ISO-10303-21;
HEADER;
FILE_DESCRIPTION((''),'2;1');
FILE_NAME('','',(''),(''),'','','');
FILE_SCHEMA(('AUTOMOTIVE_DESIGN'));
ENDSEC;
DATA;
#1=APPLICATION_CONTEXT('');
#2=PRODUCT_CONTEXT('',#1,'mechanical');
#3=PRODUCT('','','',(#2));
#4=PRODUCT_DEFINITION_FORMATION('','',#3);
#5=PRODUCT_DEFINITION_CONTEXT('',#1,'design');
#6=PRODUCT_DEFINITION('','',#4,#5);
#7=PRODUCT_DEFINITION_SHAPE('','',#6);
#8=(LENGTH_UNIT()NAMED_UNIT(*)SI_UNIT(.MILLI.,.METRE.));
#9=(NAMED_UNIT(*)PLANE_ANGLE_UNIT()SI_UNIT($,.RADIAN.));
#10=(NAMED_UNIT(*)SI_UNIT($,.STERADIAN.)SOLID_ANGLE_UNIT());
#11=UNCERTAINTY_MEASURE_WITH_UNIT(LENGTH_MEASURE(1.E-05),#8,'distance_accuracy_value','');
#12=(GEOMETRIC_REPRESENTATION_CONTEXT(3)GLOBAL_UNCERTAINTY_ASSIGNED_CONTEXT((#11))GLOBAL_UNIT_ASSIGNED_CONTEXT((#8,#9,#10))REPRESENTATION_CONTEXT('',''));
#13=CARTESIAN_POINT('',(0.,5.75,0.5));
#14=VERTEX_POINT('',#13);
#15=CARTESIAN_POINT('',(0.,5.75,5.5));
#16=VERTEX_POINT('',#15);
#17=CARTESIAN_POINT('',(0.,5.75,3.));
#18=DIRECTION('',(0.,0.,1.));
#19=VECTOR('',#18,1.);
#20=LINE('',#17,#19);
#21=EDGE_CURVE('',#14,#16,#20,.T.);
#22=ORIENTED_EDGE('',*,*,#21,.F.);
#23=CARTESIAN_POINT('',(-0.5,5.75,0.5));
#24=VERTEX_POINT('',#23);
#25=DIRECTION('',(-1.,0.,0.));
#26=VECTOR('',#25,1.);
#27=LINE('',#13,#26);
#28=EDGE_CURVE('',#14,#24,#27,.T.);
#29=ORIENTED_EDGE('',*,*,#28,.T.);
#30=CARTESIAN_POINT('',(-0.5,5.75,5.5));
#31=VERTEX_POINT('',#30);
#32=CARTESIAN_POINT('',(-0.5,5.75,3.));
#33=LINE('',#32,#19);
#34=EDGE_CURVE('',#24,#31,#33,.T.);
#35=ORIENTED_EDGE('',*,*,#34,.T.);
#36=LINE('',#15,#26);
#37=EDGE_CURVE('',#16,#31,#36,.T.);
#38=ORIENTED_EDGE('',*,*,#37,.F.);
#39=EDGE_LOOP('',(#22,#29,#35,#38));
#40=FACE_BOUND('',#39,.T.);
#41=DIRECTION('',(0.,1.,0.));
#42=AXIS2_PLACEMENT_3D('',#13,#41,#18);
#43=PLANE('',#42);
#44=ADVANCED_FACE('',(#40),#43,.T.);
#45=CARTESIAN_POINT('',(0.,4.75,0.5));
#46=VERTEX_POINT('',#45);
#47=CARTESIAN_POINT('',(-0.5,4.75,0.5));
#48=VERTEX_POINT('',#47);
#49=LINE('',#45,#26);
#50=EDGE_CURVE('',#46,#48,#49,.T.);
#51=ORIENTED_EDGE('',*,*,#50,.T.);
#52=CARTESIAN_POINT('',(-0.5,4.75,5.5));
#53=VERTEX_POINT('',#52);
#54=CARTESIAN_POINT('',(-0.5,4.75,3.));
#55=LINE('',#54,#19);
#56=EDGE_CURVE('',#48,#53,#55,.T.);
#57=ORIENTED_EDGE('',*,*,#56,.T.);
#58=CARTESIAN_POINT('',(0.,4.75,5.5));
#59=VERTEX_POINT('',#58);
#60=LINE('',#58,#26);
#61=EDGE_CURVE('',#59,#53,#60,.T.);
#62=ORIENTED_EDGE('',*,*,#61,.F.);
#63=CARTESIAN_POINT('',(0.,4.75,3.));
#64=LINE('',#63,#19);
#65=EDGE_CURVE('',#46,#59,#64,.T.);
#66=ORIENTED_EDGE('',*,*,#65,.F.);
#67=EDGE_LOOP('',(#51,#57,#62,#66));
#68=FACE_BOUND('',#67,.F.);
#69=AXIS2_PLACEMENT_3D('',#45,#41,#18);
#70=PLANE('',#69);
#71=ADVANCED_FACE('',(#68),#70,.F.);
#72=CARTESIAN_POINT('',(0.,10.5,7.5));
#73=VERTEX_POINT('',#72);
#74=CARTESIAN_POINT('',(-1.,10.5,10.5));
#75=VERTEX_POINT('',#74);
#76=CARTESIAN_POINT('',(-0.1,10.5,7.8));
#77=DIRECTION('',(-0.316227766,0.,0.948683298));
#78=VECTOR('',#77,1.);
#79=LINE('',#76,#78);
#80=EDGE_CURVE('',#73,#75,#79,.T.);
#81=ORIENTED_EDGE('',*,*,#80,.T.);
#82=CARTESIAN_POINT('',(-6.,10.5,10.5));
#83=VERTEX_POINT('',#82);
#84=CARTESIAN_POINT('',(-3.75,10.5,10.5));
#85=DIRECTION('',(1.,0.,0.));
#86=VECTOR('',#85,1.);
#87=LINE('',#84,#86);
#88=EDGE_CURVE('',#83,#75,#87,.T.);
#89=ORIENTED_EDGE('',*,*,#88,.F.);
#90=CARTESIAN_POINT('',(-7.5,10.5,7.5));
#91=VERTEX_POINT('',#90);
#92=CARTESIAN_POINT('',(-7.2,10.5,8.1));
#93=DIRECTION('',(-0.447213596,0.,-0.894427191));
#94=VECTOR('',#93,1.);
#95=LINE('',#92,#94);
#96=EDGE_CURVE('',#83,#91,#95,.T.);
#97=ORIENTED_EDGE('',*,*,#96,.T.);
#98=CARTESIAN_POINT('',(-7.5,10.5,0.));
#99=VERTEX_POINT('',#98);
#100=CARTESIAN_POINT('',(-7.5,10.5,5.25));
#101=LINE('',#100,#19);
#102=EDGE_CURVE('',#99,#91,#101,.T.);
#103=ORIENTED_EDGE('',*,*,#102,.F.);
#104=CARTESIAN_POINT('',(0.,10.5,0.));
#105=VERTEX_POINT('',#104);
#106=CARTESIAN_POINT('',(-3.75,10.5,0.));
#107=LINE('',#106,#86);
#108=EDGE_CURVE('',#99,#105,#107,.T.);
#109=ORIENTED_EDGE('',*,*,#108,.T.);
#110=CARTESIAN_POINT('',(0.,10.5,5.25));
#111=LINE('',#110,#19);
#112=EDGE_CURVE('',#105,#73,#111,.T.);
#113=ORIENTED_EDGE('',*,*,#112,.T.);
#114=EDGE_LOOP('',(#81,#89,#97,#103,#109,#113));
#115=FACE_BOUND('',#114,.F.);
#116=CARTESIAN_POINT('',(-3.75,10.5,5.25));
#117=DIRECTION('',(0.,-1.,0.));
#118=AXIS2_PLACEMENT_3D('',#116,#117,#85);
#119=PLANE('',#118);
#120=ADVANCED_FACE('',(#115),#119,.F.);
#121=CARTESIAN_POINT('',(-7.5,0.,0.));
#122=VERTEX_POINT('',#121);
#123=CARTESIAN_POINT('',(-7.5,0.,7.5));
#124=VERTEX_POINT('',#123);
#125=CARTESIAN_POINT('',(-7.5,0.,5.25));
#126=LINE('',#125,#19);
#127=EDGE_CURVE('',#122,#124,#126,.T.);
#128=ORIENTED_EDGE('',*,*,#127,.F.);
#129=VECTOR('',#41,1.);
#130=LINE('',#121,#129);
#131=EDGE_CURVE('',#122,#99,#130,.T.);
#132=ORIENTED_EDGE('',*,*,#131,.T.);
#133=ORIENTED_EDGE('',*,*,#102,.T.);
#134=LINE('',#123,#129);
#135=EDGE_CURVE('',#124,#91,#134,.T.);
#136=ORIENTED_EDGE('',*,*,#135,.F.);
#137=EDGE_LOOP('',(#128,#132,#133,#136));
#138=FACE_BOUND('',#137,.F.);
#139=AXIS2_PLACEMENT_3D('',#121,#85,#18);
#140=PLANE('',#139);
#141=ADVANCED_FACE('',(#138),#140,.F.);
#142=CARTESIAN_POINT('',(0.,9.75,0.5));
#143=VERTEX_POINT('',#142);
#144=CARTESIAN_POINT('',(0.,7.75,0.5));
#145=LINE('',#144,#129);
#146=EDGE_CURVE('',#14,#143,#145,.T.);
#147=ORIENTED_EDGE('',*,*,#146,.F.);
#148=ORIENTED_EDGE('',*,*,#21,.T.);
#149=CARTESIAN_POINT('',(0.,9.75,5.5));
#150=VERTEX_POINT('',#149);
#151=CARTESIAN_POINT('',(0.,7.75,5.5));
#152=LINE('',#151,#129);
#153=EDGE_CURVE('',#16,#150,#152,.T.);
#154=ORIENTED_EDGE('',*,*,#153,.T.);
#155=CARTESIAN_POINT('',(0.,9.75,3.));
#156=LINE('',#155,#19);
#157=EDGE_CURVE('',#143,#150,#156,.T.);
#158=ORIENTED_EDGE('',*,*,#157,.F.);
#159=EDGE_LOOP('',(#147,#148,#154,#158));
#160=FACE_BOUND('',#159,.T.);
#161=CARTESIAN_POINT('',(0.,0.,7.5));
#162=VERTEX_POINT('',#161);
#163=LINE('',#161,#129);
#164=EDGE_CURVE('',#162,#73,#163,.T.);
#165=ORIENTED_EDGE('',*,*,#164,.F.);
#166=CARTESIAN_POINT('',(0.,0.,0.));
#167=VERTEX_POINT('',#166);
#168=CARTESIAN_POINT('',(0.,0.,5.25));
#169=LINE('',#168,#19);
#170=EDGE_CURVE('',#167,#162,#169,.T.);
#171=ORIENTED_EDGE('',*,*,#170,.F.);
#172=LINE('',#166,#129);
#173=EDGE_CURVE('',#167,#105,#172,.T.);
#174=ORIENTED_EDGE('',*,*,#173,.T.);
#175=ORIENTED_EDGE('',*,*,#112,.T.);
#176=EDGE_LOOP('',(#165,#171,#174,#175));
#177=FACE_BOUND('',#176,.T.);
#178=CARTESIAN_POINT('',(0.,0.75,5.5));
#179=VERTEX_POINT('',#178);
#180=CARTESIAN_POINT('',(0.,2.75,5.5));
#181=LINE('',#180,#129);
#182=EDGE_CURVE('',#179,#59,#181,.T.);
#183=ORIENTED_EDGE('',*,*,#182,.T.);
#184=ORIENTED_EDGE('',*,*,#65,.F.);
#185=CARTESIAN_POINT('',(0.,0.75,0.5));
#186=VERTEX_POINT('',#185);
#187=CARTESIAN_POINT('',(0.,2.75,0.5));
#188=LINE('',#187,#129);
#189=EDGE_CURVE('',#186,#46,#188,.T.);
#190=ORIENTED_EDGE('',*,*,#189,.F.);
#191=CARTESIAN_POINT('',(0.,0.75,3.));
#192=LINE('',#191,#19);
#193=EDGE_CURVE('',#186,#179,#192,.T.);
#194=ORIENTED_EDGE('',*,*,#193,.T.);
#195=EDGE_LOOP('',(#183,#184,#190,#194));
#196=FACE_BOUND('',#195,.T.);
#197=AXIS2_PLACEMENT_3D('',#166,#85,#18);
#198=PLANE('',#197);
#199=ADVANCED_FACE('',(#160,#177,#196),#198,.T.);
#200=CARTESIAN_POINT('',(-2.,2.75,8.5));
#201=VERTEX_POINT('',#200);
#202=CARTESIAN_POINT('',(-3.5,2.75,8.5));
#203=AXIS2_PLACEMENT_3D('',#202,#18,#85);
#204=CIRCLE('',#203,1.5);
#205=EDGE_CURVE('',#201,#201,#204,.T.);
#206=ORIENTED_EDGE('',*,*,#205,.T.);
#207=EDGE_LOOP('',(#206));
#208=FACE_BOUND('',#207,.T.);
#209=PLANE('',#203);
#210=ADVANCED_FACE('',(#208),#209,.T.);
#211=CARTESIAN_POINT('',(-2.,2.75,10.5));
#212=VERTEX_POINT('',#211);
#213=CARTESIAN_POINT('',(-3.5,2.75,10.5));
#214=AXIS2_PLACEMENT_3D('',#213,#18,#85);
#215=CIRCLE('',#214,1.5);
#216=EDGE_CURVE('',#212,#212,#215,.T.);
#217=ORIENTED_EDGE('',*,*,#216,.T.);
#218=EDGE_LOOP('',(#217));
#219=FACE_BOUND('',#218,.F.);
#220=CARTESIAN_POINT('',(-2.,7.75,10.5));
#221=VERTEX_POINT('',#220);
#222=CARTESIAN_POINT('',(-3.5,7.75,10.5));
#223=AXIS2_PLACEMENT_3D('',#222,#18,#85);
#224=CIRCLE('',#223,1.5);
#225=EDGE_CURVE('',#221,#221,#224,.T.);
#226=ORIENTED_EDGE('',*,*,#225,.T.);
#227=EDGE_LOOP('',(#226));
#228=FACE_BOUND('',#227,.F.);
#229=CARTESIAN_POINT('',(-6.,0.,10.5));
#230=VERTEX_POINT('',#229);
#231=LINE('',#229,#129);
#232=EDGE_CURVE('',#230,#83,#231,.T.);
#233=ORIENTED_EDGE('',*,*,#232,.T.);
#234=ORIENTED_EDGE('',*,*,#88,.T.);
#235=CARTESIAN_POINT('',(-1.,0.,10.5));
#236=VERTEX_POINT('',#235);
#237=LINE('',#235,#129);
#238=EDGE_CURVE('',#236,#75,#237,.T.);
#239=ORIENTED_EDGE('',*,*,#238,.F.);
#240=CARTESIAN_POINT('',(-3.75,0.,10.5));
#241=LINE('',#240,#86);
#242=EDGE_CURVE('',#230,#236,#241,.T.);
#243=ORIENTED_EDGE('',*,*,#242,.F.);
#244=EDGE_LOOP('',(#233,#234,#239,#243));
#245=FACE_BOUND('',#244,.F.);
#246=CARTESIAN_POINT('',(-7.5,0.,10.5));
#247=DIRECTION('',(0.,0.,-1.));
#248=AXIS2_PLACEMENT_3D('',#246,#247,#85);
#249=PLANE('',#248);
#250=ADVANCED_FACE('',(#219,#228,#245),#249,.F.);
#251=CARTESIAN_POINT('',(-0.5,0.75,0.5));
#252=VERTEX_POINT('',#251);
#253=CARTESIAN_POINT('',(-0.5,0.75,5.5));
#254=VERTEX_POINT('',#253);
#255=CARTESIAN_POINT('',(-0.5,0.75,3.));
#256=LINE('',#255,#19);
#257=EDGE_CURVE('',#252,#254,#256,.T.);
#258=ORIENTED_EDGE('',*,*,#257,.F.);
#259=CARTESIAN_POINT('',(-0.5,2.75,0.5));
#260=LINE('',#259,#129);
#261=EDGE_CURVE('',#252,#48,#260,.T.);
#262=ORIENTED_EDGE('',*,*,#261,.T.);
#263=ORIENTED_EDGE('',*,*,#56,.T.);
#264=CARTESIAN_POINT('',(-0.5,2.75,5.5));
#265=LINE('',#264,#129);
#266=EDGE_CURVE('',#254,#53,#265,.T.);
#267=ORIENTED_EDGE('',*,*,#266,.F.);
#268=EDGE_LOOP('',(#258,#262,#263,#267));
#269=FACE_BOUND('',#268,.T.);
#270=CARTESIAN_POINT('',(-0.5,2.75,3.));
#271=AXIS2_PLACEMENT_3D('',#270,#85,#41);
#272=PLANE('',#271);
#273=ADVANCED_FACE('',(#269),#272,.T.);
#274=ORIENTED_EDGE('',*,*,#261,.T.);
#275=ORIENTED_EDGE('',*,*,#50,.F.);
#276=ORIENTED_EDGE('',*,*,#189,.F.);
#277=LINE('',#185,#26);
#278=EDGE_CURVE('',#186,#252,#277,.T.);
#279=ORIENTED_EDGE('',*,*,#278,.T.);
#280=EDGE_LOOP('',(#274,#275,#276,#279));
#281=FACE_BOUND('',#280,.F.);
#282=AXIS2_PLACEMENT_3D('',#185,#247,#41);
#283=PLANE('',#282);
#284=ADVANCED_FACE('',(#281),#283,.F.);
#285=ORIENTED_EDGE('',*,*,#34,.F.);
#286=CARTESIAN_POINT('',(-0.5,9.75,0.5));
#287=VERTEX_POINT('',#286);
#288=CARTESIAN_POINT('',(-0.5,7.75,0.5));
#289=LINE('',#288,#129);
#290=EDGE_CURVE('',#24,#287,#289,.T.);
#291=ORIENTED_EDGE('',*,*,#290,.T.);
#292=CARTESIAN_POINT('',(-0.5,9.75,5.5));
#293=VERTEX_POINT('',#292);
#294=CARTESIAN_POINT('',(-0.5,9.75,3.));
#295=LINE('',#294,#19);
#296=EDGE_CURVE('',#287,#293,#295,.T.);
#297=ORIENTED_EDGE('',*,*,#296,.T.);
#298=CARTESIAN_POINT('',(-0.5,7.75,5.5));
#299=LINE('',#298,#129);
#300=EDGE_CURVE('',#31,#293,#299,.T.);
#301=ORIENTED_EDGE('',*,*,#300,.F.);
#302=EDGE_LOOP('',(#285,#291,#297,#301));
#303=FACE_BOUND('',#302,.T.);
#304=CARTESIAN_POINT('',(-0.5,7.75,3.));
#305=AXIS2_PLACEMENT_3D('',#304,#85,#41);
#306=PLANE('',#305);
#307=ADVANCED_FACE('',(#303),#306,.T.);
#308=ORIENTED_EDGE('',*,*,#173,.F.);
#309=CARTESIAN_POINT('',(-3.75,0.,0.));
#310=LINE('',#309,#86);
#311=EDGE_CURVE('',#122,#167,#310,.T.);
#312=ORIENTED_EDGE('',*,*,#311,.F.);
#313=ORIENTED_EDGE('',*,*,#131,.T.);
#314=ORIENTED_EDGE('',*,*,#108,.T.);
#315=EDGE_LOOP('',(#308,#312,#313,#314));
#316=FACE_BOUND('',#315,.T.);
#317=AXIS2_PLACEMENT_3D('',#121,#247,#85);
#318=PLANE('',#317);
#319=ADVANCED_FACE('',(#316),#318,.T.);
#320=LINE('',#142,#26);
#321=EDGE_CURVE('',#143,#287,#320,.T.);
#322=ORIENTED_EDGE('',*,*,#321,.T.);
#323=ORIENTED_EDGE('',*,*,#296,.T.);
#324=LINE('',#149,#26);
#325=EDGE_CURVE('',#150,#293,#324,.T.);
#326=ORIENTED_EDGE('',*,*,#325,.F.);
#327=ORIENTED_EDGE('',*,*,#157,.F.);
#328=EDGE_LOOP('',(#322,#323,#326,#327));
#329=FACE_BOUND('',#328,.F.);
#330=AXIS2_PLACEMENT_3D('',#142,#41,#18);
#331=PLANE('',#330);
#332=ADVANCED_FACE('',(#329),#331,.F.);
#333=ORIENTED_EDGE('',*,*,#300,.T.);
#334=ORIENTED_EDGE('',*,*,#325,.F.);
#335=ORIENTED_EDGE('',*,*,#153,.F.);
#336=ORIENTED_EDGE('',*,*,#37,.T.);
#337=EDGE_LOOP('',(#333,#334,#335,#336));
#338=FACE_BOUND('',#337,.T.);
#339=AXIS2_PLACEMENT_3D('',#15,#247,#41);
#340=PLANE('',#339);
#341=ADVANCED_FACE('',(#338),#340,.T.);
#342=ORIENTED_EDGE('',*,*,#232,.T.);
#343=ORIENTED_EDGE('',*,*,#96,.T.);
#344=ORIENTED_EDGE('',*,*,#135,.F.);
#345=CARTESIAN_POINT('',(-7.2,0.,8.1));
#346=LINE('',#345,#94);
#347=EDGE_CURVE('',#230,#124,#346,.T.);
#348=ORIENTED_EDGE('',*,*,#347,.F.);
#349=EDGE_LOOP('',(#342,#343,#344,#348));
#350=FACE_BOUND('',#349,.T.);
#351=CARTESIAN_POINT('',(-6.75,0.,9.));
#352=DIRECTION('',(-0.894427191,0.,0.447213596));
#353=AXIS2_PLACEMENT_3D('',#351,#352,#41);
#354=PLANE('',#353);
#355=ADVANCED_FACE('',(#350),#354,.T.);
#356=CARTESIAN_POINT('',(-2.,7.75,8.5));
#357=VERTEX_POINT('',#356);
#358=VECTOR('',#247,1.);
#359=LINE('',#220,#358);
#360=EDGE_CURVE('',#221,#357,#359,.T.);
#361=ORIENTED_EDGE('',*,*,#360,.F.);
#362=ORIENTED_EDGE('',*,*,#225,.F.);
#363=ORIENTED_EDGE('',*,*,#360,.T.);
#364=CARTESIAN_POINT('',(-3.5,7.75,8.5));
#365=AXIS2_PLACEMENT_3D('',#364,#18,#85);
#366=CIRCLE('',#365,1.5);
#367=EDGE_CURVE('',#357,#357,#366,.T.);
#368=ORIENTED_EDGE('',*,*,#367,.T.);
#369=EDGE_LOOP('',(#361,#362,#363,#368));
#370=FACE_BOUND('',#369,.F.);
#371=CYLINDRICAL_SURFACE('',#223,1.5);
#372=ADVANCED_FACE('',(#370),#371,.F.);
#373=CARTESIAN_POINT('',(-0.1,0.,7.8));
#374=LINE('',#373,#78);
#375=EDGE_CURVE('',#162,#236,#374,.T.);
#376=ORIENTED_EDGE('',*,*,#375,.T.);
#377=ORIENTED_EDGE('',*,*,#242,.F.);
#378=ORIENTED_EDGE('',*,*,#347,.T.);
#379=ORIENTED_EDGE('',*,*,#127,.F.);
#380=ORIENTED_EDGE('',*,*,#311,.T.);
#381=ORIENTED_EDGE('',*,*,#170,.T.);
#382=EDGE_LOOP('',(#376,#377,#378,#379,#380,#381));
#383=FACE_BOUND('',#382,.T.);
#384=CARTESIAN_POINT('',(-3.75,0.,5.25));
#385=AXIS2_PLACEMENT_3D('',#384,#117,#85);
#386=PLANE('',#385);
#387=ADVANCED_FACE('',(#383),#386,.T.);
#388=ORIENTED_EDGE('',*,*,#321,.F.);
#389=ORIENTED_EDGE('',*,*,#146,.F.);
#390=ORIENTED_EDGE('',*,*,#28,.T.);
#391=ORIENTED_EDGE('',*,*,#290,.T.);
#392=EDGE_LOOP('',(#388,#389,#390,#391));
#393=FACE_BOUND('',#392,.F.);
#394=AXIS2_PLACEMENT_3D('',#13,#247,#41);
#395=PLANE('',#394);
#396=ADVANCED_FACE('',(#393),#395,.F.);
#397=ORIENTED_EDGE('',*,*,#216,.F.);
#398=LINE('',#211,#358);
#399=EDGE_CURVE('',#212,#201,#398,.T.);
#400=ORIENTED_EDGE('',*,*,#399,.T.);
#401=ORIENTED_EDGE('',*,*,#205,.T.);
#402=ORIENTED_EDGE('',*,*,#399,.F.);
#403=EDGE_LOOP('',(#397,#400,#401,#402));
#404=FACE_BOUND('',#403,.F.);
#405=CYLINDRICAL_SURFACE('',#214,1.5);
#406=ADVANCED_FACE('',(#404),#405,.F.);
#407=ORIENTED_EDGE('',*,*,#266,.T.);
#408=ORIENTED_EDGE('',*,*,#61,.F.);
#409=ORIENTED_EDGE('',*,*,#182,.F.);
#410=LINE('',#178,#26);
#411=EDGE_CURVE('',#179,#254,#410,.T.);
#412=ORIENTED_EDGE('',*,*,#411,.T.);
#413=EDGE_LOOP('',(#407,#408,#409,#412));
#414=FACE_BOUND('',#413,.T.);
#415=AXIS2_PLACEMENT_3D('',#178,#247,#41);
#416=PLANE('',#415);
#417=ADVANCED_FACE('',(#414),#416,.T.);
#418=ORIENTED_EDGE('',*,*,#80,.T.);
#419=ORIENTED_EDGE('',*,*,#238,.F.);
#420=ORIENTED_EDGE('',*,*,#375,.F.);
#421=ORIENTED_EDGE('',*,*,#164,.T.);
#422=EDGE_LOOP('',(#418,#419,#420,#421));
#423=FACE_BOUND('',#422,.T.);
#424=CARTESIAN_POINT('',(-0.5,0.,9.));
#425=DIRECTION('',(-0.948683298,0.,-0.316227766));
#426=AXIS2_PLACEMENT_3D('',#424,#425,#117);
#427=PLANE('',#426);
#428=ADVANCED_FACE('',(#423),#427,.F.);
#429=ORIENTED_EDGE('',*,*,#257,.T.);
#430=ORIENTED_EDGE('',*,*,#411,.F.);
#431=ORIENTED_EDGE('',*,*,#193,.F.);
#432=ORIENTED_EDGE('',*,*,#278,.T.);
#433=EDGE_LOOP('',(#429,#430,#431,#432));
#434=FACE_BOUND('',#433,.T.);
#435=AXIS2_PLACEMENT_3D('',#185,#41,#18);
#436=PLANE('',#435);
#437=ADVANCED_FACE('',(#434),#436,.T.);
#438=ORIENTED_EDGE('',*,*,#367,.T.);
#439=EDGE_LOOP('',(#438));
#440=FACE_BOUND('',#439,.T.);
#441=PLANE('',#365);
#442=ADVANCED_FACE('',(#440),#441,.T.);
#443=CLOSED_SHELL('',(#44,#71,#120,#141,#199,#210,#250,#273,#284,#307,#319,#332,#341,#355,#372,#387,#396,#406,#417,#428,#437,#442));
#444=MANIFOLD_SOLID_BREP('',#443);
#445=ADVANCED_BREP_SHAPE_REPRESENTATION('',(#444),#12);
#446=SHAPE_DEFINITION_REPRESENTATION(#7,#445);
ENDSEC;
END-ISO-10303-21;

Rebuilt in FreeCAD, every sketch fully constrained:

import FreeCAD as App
import Part
import Sketcher


def edges_at(feature, points):
    """Names of the edges that pass closest to the given points."""
    edges = feature.Shape.Edges
    near = lambda p: min(range(len(edges)), key=lambda i: edges[i].distToShape(Part.Vertex(*p))[0])
    return sorted({f"Edge{near(p) + 1}" for p in points})

doc = App.newDocument("Part")
body = doc.addObject("PartDesign::Body", "Body")

sketch1 = doc.addObject("Sketcher::SketchObject", "Sketch")
body.addObject(sketch1)
sketch1.AttachmentSupport = (doc.XZ_Plane, [""])
sketch1.MapMode = "FlatFace"
sketch1.addGeometry([
    Part.LineSegment(App.Vector(-8, 10, 0), App.Vector(-8, 0, 0)),
    Part.LineSegment(App.Vector(-8, 0, 0), App.Vector(0, 0, 0)),
    Part.LineSegment(App.Vector(0, 0, 0), App.Vector(0, 10, 0)),
    Part.LineSegment(App.Vector(0, 10, 0), App.Vector(-8, 10, 0)),
], False)
sketch1.addConstraint([
    Sketcher.Constraint("Coincident", 0, 2, 1, 1),
    Sketcher.Constraint("Coincident", 1, 2, 2, 1),
    Sketcher.Constraint("Coincident", 2, 2, 3, 1),
    Sketcher.Constraint("Coincident", 3, 2, 0, 1),
    Sketcher.Constraint("Vertical", 0),
    Sketcher.Constraint("Horizontal", 1),
    Sketcher.Constraint("Vertical", 2),
    Sketcher.Constraint("Horizontal", 3),
    Sketcher.Constraint("Coincident", 1, 2, -1, 1),
    Sketcher.Constraint("DistanceX", 1, 1, 1, 2, 7.5),
    Sketcher.Constraint("DistanceY", 0, 2, 0, 1, 10.5),
])
pad1 = doc.addObject("PartDesign::Pad", "Pad")
body.addObject(pad1)
pad1.Profile = sketch1
pad1.Length = 10.5
pad1.Reversed = True
doc.recompute()

chamfer = doc.addObject("PartDesign::Chamfer", "Chamfer")
body.addObject(chamfer)
chamfer.Base = (pad1, edges_at(pad1, [(-7.5, 5.25, 10.5)]))
chamfer.ChamferType = "Two distances"
chamfer.Size = 1.5
chamfer.Size2 = 3
chamfer.FlipDirection = True
doc.recompute()

chamfer2 = doc.addObject("PartDesign::Chamfer", "Chamfer001")
body.addObject(chamfer2)
chamfer2.Base = (chamfer, edges_at(chamfer, [(0, 5.25, 10.5)]))
chamfer2.ChamferType = "Two distances"
chamfer2.Size = 3
chamfer2.Size2 = 1
chamfer2.FlipDirection = True

sketch2 = doc.addObject("Sketcher::SketchObject", "Sketch001")
body.addObject(sketch2)
sketch2.AttachmentSupport = (doc.XY_Plane, [""])
sketch2.MapMode = "FlatFace"
sketch2.AttachmentOffset = App.Placement(App.Vector(0, 0, 10.5), App.Rotation())
sketch2.addGeometry([
    Part.Circle(App.Vector(-3.5, 2.8, 0), App.Vector(0, 0, 1), 1.5),
    Part.Circle(App.Vector(-3.5, 7.8, 0), App.Vector(0, 0, 1), 1.5),
], False)
sketch2.addConstraint([
    Sketcher.Constraint("Equal", 0, 1),
    Sketcher.Constraint("Vertical", 0, 3, 1, 3),
    Sketcher.Constraint("Diameter", 0, 3.0),
    Sketcher.Constraint("DistanceY", 0, 3, 1, 3, 5.0),
    Sketcher.Constraint("DistanceX", 0, 3, -1, 1, 3.5),
    Sketcher.Constraint("DistanceY", -1, 1, 0, 3, 2.75),
])
pocket1 = doc.addObject("PartDesign::Pocket", "Pocket")
body.addObject(pocket1)
pocket1.Profile = sketch2
pocket1.Length = 2

sketch3 = doc.addObject("Sketcher::SketchObject", "Sketch002")
body.addObject(sketch3)
sketch3.AttachmentSupport = (doc.YZ_Plane, [""])
sketch3.MapMode = "FlatFace"
sketch3.addGeometry([
    Part.LineSegment(App.Vector(0.8, 5.5, 0), App.Vector(0.8, 0.5, 0)),
    Part.LineSegment(App.Vector(0.8, 0.5, 0), App.Vector(4.8, 0.5, 0)),
    Part.LineSegment(App.Vector(4.8, 0.5, 0), App.Vector(4.8, 5.5, 0)),
    Part.LineSegment(App.Vector(4.8, 5.5, 0), App.Vector(0.8, 5.5, 0)),
    Part.LineSegment(App.Vector(5.8, 5.5, 0), App.Vector(5.8, 0.5, 0)),
    Part.LineSegment(App.Vector(5.8, 0.5, 0), App.Vector(9.8, 0.5, 0)),
    Part.LineSegment(App.Vector(9.8, 0.5, 0), App.Vector(9.8, 5.5, 0)),
    Part.LineSegment(App.Vector(9.8, 5.5, 0), App.Vector(5.8, 5.5, 0)),
], False)
sketch3.addConstraint([
    Sketcher.Constraint("Coincident", 0, 2, 1, 1),
    Sketcher.Constraint("Coincident", 1, 2, 2, 1),
    Sketcher.Constraint("Coincident", 2, 2, 3, 1),
    Sketcher.Constraint("Coincident", 3, 2, 0, 1),
    Sketcher.Constraint("Coincident", 4, 2, 5, 1),
    Sketcher.Constraint("Coincident", 5, 2, 6, 1),
    Sketcher.Constraint("Coincident", 6, 2, 7, 1),
    Sketcher.Constraint("Coincident", 7, 2, 4, 1),
    Sketcher.Constraint("Vertical", 0),
    Sketcher.Constraint("Horizontal", 1),
    Sketcher.Constraint("Vertical", 2),
    Sketcher.Constraint("Horizontal", 3),
    Sketcher.Constraint("Vertical", 4),
    Sketcher.Constraint("Horizontal", 5),
    Sketcher.Constraint("Vertical", 6),
    Sketcher.Constraint("Horizontal", 7),
    Sketcher.Constraint("Horizontal", 1, 2, 4, 2),
    Sketcher.Constraint("Horizontal", 3, 2, 6, 2),
    Sketcher.Constraint("Equal", 3, 5),
    Sketcher.Constraint("DistanceX", 1, 1, 1, 2, 4.0),
    Sketcher.Constraint("DistanceY", 0, 2, 0, 1, 5.0),
    Sketcher.Constraint("DistanceX", 1, 2, 4, 2, 1.0),
    Sketcher.Constraint("DistanceY", -1, 1, 0, 2, 0.5),
    Sketcher.Constraint("DistanceX", -1, 1, 0, 2, 0.75),
])
pocket2 = doc.addObject("PartDesign::Pocket", "Pocket001")
body.addObject(pocket2)
pocket2.Profile = sketch3
pocket2.Length = 0.5

doc.recompute()
